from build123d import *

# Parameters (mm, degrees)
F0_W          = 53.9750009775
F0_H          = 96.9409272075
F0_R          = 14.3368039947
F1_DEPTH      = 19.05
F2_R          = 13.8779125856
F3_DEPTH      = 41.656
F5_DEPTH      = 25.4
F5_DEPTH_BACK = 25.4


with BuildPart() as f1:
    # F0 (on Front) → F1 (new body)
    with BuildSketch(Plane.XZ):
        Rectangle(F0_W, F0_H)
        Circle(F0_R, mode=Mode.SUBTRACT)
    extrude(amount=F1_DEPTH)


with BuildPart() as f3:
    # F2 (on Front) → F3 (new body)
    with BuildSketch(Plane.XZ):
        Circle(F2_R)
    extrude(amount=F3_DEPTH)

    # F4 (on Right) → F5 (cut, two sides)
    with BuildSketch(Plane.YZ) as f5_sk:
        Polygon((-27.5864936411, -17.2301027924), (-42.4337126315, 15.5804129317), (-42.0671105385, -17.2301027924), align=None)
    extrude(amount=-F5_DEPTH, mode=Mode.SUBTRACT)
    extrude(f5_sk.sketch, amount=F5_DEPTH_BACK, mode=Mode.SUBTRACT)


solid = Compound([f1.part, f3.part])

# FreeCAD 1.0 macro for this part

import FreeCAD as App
import Part
import Sketcher
Q = App.Units.Quantity


def add_polygon(sketch, points):
    """Adds a closed chain of lines whose ends are joined by coincident constraints."""
    first, n = sketch.GeometryCount, len(points)
    for a, b in zip(points, points[1:] + points[:1]):
        sketch.addGeometry(Part.LineSegment(App.Vector(*a, 0), App.Vector(*b, 0)), False)
    for i in range(n):
        sketch.addConstraint(Sketcher.Constraint("Coincident", first + i, 2, first + (i + 1) % n, 1))

doc = App.newDocument("Part")
body = doc.addObject("PartDesign::Body", "Body")

sketch1 = body.newObject("Sketcher::SketchObject", "Sketch")
sketch1.AttachmentSupport = (doc.getObject("XZ_Plane"), [""])
sketch1.MapMode = "FlatFace"
add_polygon(sketch1, [(-27, 48), (-27, -48), (27, -48), (27, 48)])
sketch1.addGeometry(Part.Circle(App.Vector(0, 0, 0), App.Vector(0, 0, 1), 14), False)
sketch1.addConstraint([
    Sketcher.Constraint("Vertical", 0),
    Sketcher.Constraint("Horizontal", 1),
    Sketcher.Constraint("Vertical", 2),
    Sketcher.Constraint("Horizontal", 3),
    Sketcher.Constraint("Coincident", 4, 3, -1, 1),
    Sketcher.Constraint("Symmetric", 0, 2, 2, 2, -1, 1),
    Sketcher.Constraint("DistanceX", 1, 1, 1, 2, Q("2.125 in")),
    Sketcher.Constraint("Diameter", 4, Q("28.673608 mm")),
    Sketcher.Constraint("DistanceY", 0, 2, 0, 1, Q("96.940927 mm")),
])
pad1 = body.newObject("PartDesign::Pad", "Pad")
pad1.Profile = sketch1
pad1.Length = Q("0.75 in")
body2 = doc.addObject("PartDesign::Body", "Body001")

sketch2 = body2.newObject("Sketcher::SketchObject", "Sketch001")
sketch2.AttachmentSupport = (doc.getObject("XZ_Plane001"), [""])
sketch2.MapMode = "FlatFace"
sketch2.addGeometry(Part.Circle(App.Vector(0, 0, 0), App.Vector(0, 0, 1), 14), False)
sketch2.addConstraint([
    Sketcher.Constraint("Coincident", 0, 3, -1, 1),
    Sketcher.Constraint("Diameter", 0, Q("27.755825 mm")),
])
pad2 = body2.newObject("PartDesign::Pad", "Pad001")
pad2.Profile = sketch2
pad2.Length = Q("1.64 in")

sketch3 = body2.newObject("Sketcher::SketchObject", "Sketch002")
sketch3.AttachmentSupport = (doc.getObject("YZ_Plane001"), [""])
sketch3.MapMode = "FlatFace"
add_polygon(sketch3, [(-28, -17), (-42, 16), (-42, -17)])
sketch3.addConstraint([
    Sketcher.Constraint("Horizontal", 2),
    Sketcher.Constraint("DistanceX", 2, 1, 2, 2, Q("14.480617 mm")),
    Sketcher.Constraint("DistanceX", 1, 2, -1, 1, Q("42.067111 mm")),
    Sketcher.Constraint("DistanceX", 0, 2, 2, 2, Q("14.847219 mm")),
    Sketcher.Constraint("Distance", 0, Q("36.013468 mm")),
    Sketcher.Constraint("DistanceY", -1, 1, 0, 2, Q("15.580413 mm")),
])
pocket1 = body2.newObject("PartDesign::Pocket", "Pocket")
pocket1.Profile = sketch3
pocket1.Type = "ThroughAll"
pocket1.Midplane = True

doc.recompute()
